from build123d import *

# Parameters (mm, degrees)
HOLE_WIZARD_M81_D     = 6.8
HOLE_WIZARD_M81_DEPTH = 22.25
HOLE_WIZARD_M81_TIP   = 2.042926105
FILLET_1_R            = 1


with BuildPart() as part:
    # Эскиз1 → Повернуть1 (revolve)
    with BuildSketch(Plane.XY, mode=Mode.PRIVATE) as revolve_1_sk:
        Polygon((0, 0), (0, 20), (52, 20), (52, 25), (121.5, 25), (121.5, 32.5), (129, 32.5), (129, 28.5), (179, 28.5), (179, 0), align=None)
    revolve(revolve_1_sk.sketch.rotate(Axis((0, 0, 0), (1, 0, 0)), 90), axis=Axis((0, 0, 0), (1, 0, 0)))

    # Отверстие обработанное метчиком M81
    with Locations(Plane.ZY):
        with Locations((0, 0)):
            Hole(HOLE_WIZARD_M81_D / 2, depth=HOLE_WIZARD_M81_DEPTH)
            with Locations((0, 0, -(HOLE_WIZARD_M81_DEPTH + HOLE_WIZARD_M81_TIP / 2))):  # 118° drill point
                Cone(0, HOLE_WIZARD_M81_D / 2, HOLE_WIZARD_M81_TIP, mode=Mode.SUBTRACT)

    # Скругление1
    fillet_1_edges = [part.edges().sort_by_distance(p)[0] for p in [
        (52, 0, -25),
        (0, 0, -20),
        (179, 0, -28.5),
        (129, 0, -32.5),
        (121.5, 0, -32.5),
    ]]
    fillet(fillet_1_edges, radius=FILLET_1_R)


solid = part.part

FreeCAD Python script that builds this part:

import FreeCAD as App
import Part
import Sketcher


def edges_at(feature, points):
    """Names of the edges that pass closest to the given points."""
    edges = feature.Shape.Edges
    near = lambda p: min(range(len(edges)), key=lambda i: edges[i].distToShape(Part.Vertex(*p))[0])
    return sorted({f"Edge{near(p) + 1}" for p in points})

doc = App.newDocument("Part")
body = doc.addObject("PartDesign::Body", "Body")

# Sketch on XY plane
sketch1 = body.newObject("Sketcher::SketchObject", "Sketch")
sketch1.AttachmentSupport = (doc.getObject("XY_Plane"), [""])
sketch1.MapMode = "FlatFace"
sketch1.addGeometry([
    Part.LineSegment(App.Vector(0, 20, 0), App.Vector(0, 0, 0)),  # 0
    Part.LineSegment(App.Vector(0, 0, 0), App.Vector(179, 0, 0)),  # 1
    Part.LineSegment(App.Vector(179, 0, 0), App.Vector(179, 28.5, 0)),  # 2
    Part.LineSegment(App.Vector(179, 28.5, 0), App.Vector(129, 28.5, 0)),  # 3
    Part.LineSegment(App.Vector(129, 28.5, 0), App.Vector(129, 32.5, 0)),  # 4
    Part.LineSegment(App.Vector(129, 32.5, 0), App.Vector(121.5, 32.5, 0)),  # 5
    Part.LineSegment(App.Vector(121.5, 32.5, 0), App.Vector(121.5, 25, 0)),  # 6
    Part.LineSegment(App.Vector(121.5, 25, 0), App.Vector(52, 25, 0)),  # 7
    Part.LineSegment(App.Vector(52, 25, 0), App.Vector(52, 20, 0)),  # 8
    Part.LineSegment(App.Vector(52, 20, 0), App.Vector(0, 20, 0)),  # 9
], False)
sketch1.addConstraint([
    Sketcher.Constraint("Coincident", 0, 2, 1, 1),
    Sketcher.Constraint("Coincident", 1, 2, 2, 1),
    Sketcher.Constraint("Coincident", 2, 2, 3, 1),
    Sketcher.Constraint("Coincident", 3, 2, 4, 1),
    Sketcher.Constraint("Coincident", 4, 2, 5, 1),
    Sketcher.Constraint("Coincident", 5, 2, 6, 1),
    Sketcher.Constraint("Coincident", 6, 2, 7, 1),
    Sketcher.Constraint("Coincident", 7, 2, 8, 1),
    Sketcher.Constraint("Coincident", 8, 2, 9, 1),
    Sketcher.Constraint("Coincident", 9, 2, 0, 1),
    Sketcher.Constraint("Vertical", 0),
    Sketcher.Constraint("Horizontal", 1),
    Sketcher.Constraint("Vertical", 2),
    Sketcher.Constraint("Horizontal", 3),
    Sketcher.Constraint("Vertical", 4),
    Sketcher.Constraint("Horizontal", 5),
    Sketcher.Constraint("Vertical", 6),
    Sketcher.Constraint("Horizontal", 7),
    Sketcher.Constraint("Vertical", 8),
    Sketcher.Constraint("Horizontal", 9),
    Sketcher.Constraint("Coincident", 0, 2, -1, 1),
    Sketcher.Constraint("Equal", 5, 6),
    Sketcher.Constraint("DistanceX", 1, 1, 1, 2, 179.0),
    Sketcher.Constraint("DistanceX", 3, 2, 3, 1, 50.0),
    Sketcher.Constraint("DistanceX", 9, 2, 9, 1, 52.0),
    Sketcher.Constraint("DistanceY", 0, 2, 0, 1, 20.0),
    Sketcher.Constraint("DistanceY", 4, 1, 4, 2, 4.0),
    Sketcher.Constraint("DistanceY", 8, 2, 8, 1, 5.0),
    Sketcher.Constraint("DistanceX", 5, 2, 5, 1, 7.5),
])
revolution = body.newObject("PartDesign::Revolution", "Revolution")
revolution.Profile = sketch1
revolution.ReferenceAxis = (sketch1, ["H_Axis"])
revolution.Angle = 360

# Sketch on YZ plane
sketch2 = body.newObject("Sketcher::SketchObject", "Sketch001")
sketch2.AttachmentSupport = (doc.getObject("YZ_Plane"), [""])
sketch2.MapMode = "FlatFace"
sketch2.addGeometry(Part.Circle(App.Vector(0, 0, 0), App.Vector(0, 0, 1), 3.4), False)
sketch2.addConstraint([
    Sketcher.Constraint("Coincident", 0, 3, -1, 1),
    Sketcher.Constraint("Diameter", 0, 6.8),
])
doc.recompute()
hole = body.newObject("PartDesign::Hole", "Hole")
hole.Profile = sketch2
hole.ThreadType = "None"
hole.Diameter = 6.8
hole.DepthType = "Dimension"
hole.Depth = 22.25
hole.DrillPoint = "Angled"
hole.DrillPointAngle = 118
hole.Reversed = True
doc.recompute()

fillet = body.newObject("PartDesign::Fillet", "Fillet")
fillet.Base = (hole, edges_at(hole, [
    (52, 0, -25),
    (0, 0, -20),
    (179, 0, -28.5),
    (129, 0, -32.5),
    (121.5, 0, -32.5),
]))
fillet.Radius = 1

doc.recompute()
